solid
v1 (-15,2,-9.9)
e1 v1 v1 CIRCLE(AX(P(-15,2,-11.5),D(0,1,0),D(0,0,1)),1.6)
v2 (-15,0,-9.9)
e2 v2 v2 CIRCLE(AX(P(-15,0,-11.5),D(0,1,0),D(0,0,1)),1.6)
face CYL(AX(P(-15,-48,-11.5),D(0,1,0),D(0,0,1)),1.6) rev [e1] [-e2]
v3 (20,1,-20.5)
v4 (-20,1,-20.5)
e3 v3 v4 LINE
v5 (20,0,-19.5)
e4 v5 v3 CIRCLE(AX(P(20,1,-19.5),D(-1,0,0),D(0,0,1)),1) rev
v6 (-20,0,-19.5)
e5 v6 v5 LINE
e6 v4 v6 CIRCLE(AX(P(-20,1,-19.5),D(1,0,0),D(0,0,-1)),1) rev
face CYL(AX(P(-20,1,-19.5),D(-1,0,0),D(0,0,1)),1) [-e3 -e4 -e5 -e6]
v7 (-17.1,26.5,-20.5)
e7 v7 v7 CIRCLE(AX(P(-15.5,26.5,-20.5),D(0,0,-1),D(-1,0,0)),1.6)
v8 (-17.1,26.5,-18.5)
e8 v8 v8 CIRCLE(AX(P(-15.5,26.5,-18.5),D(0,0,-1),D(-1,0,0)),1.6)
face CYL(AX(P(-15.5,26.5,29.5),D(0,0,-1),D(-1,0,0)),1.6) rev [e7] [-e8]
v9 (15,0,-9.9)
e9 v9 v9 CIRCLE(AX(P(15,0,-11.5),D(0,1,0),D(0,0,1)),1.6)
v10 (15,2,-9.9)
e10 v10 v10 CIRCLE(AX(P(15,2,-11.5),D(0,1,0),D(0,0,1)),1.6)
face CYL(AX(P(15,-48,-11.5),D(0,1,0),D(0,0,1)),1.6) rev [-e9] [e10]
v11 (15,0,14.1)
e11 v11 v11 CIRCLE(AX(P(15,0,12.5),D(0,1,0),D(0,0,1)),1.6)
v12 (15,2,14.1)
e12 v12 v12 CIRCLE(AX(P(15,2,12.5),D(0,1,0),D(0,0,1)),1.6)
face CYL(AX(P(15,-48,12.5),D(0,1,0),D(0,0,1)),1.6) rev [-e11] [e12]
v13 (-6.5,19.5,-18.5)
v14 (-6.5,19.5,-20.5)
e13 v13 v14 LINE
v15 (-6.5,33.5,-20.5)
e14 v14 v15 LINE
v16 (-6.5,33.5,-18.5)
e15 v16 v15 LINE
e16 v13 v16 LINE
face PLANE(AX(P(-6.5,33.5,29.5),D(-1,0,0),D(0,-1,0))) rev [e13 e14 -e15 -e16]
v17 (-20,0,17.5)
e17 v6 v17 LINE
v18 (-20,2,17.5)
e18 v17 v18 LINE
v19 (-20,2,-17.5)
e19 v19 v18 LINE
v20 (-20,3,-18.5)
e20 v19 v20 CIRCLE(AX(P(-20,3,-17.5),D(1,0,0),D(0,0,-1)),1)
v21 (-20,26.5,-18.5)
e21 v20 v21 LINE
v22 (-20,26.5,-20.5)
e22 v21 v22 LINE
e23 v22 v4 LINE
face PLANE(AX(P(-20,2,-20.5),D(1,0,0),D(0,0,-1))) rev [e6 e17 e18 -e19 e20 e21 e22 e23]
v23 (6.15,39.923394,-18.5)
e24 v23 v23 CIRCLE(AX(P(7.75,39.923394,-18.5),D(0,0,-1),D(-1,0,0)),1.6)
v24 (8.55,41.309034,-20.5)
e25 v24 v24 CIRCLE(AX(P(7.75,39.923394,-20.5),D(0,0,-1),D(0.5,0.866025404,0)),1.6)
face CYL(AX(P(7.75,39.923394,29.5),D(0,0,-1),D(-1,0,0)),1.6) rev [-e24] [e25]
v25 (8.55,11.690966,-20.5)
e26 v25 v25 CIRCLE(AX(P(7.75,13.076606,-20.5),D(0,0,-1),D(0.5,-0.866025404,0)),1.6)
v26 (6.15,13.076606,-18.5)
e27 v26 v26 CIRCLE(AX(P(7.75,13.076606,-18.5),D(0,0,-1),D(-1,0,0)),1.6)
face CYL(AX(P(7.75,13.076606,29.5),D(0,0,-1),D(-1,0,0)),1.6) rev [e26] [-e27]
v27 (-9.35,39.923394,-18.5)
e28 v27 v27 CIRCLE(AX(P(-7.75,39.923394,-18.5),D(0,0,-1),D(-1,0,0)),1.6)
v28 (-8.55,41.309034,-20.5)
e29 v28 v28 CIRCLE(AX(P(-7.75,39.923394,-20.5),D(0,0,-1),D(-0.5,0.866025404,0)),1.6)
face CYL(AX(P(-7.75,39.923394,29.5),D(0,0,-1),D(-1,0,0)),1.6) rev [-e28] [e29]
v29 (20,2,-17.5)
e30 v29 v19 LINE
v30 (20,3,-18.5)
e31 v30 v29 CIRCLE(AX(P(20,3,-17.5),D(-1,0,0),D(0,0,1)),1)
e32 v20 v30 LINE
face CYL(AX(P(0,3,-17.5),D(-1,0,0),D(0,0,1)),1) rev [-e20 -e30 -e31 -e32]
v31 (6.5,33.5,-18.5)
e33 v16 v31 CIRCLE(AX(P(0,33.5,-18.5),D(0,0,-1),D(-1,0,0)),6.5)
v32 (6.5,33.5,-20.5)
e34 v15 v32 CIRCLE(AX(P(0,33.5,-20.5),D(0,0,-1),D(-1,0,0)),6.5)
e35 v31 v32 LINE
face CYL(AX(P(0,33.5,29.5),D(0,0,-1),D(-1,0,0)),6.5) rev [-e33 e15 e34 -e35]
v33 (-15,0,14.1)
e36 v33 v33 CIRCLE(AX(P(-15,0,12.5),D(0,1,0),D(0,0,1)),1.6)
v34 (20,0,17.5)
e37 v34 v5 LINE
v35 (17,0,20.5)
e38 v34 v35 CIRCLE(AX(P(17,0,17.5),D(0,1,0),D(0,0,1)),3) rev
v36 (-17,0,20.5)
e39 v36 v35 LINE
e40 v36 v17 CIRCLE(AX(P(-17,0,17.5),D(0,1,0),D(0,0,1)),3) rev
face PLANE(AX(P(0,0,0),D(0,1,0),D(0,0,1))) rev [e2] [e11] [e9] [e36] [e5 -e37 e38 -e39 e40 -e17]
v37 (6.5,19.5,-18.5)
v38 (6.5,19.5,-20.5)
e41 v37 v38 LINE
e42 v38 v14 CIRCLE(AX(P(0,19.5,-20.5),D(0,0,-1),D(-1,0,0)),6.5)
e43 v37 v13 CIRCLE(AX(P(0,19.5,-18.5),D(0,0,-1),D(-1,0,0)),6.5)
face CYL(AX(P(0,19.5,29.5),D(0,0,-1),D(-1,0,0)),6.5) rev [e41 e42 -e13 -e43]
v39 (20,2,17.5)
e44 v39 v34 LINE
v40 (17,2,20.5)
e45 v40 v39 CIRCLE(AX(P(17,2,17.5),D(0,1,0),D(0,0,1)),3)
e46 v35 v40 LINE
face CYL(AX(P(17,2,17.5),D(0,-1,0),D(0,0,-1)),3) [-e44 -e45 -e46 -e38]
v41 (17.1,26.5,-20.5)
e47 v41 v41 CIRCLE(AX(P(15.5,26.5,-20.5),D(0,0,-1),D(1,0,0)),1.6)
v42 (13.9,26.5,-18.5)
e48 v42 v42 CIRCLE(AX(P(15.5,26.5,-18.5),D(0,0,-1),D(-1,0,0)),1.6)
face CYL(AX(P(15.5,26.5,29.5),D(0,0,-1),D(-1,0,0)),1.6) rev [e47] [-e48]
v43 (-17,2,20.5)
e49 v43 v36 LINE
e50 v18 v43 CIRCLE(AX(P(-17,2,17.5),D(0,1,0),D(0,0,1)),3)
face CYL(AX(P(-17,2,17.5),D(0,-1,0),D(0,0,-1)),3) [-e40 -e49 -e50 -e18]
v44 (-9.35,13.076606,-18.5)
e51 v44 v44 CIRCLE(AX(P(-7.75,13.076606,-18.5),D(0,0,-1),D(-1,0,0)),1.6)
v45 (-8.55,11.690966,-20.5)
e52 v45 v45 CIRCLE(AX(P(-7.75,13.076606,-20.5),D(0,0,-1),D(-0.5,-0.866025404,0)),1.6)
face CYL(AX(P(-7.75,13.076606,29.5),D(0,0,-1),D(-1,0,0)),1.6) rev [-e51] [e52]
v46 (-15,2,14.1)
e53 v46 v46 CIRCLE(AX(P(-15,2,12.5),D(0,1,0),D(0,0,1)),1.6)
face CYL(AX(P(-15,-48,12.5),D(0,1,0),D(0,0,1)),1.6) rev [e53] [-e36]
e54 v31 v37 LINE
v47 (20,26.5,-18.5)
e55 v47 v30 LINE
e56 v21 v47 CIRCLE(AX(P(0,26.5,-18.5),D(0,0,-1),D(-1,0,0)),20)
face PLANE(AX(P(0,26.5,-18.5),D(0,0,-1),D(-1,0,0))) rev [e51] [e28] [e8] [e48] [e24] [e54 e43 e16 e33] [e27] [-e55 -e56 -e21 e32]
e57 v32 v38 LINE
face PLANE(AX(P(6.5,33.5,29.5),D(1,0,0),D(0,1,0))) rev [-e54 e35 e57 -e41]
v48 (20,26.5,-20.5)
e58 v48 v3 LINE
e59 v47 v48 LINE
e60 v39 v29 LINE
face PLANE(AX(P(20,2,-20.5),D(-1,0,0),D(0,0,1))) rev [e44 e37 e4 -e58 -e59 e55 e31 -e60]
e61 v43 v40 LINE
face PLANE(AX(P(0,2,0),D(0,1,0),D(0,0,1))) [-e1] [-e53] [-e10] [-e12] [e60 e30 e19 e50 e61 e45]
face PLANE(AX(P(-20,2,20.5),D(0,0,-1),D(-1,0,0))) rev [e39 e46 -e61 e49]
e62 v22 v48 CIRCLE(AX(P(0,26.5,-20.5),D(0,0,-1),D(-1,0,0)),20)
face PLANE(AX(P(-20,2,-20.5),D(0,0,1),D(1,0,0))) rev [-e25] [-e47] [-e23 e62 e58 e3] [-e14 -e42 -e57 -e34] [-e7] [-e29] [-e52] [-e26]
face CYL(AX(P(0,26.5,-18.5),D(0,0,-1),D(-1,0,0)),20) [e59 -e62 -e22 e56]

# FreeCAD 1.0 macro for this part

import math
import FreeCAD as App
import Part
import Sketcher


def edges_at(feature, points):
    """Names of the edges that pass closest to the given points."""
    edges = feature.Shape.Edges
    near = lambda p: min(range(len(edges)), key=lambda i: edges[i].distToShape(Part.Vertex(*p))[0])
    return sorted({f"Edge{near(p) + 1}" for p in points})


def add_polygon(sketch, points):
    """Adds a closed chain of lines whose ends are joined by coincident constraints."""
    first, n = sketch.GeometryCount, len(points)
    for a, b in zip(points, points[1:] + points[:1]):
        sketch.addGeometry(Part.LineSegment(App.Vector(*a, 0), App.Vector(*b, 0)), False)
    for i in range(n):
        sketch.addConstraint(Sketcher.Constraint("Coincident", first + i, 2, first + (i + 1) % n, 1))

doc = App.newDocument("Part")
params = doc.addObject("Spreadsheet::Sheet", "Params")
for row, (alias, value) in enumerate([
    ("sketch1_width", "40 mm"),
    ("sketch1_height", "41 mm"),
    ("pad1_length", "2 mm"),
    ("fillet_radius", "3 mm"),
    ("sketch2_diameter", "3.2 mm"),
    ("pocket1_length", "50 mm"),
    ("sketch3_radius", "20 mm"),
    ("sketch3_height", "26.5 mm"),
    ("pad2_length", "2 mm"),
    ("sketch4_radius", "6.5 mm"),
    ("sketch4_height", "14 mm"),
    ("pocket2_length", "50 mm"),
    ("sketch5_diameter", "3.2 mm"),
    ("pocket3_length", "50 mm"),
    ("fillet2_radius", "1 mm"),
    ("fillet3_radius", "1 mm"),
], start=1):
    params.set(f"A{row}", alias)
    params.set(f"B{row}", "=" + value)
    params.setAlias(f"B{row}", alias)

body = doc.addObject("PartDesign::Body", "Body")

sketch1 = body.newObject("Sketcher::SketchObject", "Sketch")
sketch1.AttachmentSupport = (doc.getObject("XZ_Plane"), [""])
sketch1.MapMode = "FlatFace"
add_polygon(sketch1, [(-20, -20), (-20, 20), (20, 20), (20, -20)])
sketch1.addConstraint([
    Sketcher.Constraint("Vertical", 0),
    Sketcher.Constraint("Horizontal", 1),
    Sketcher.Constraint("Vertical", 2),
    Sketcher.Constraint("Horizontal", 3),
    Sketcher.Constraint("Symmetric", 0, 2, 2, 2, -1, 1),
    Sketcher.Constraint("DistanceX", 1, 1, 1, 2, 40.0),
    Sketcher.Constraint("DistanceY", 0, 1, 0, 2, 41.0),
])
sketch1.setExpression("Constraints[9]", "Params.sketch1_width")
sketch1.setExpression("Constraints[10]", "Params.sketch1_height")
pad1 = body.newObject("PartDesign::Pad", "Pad")
pad1.Profile = sketch1
pad1.setExpression("Length", "Params.pad1_length")
pad1.Reversed = True
doc.recompute()

fillet = body.newObject("PartDesign::Fillet", "Fillet")
fillet.Base = (pad1, edges_at(pad1, [(20, 1, 20.5), (-20, 1, 20.5)]))
fillet.setExpression("Radius", "Params.fillet_radius")

sketch2 = body.newObject("Sketcher::SketchObject", "Sketch001")
sketch2.AttachmentSupport = (doc.getObject("XZ_Plane"), [""])
sketch2.MapMode = "FlatFace"
sketch2.AttachmentOffset = App.Placement(App.Vector(0, 0, -2), App.Rotation())
sketch2.addGeometry([
    Part.Circle(App.Vector(-15, 12.5, 0), App.Vector(0, 0, 1), 1.6),
    Part.Circle(App.Vector(-15, -11.5, 0), App.Vector(0, 0, 1), 1.6),
    Part.Circle(App.Vector(15, -11.5, 0), App.Vector(0, 0, 1), 1.6),
    Part.Circle(App.Vector(15, 12.5, 0), App.Vector(0, 0, 1), 1.6),
], False)
sketch2.addConstraint([
    Sketcher.Constraint("Equal", 0, 1),
    Sketcher.Constraint("Equal", 1, 2),
    Sketcher.Constraint("Equal", 2, 3),
    Sketcher.Constraint("Symmetric", 1, 3, 2, 3, -2),
    Sketcher.Constraint("Symmetric", 0, 3, 3, 3, -2),
    Sketcher.Constraint("Vertical", 0, 3, 1, 3),
    Sketcher.Constraint("Diameter", 0, 3.2),
    Sketcher.Constraint("DistanceX", 0, 3, -1, 1, 15.0),
    Sketcher.Constraint("DistanceY", 1, 3, 0, 3, 24.0),
    Sketcher.Constraint("DistanceY", -1, 1, 0, 3, 12.5),
])
sketch2.setExpression("Constraints[6]", "Params.sketch2_diameter")
pocket1 = body.newObject("PartDesign::Pocket", "Pocket")
pocket1.Profile = sketch2
pocket1.setExpression("Length", "Params.pocket1_length")
pocket1.Reversed = True

sketch3 = body.newObject("Sketcher::SketchObject", "Sketch002")
sketch3.AttachmentSupport = (doc.getObject("XY_Plane"), [""])
sketch3.MapMode = "FlatFace"
sketch3.AttachmentOffset = App.Placement(App.Vector(0, 0, -20.5), App.Rotation())
sketch3.addGeometry([
    Part.LineSegment(App.Vector(20, 0, 0), App.Vector(-20, 0, 0)),
    Part.LineSegment(App.Vector(-20, 0, 0), App.Vector(-20, 26, 0)),
    Part.ArcOfCircle(Part.Circle(App.Vector(0, 26, 0), App.Vector(0, 0, 1), 20), math.radians(0), math.radians(180)),
    Part.LineSegment(App.Vector(20, 26, 0), App.Vector(20, 0, 0)),
], False)
sketch3.addConstraint([
    Sketcher.Constraint("Coincident", 0, 2, 1, 1),
    Sketcher.Constraint("Tangent", 1, 2, 2, 2),
    Sketcher.Constraint("Tangent", 2, 1, 3, 1),
    Sketcher.Constraint("Coincident", 3, 2, 0, 1),
    Sketcher.Constraint("Horizontal", 0),
    Sketcher.Constraint("Vertical", 1),
    Sketcher.Constraint("Vertical", 3),
    Sketcher.Constraint("Symmetric", 0, 2, 3, 2, -1, 1),
    Sketcher.Constraint("Radius", 2, 20.0),
    Sketcher.Constraint("DistanceY", 1, 1, 1, 2, 26.5),
])
sketch3.setExpression("Constraints[8]", "Params.sketch3_radius")
sketch3.setExpression("Constraints[9]", "Params.sketch3_height")
pad2 = body.newObject("PartDesign::Pad", "Pad001")
pad2.Profile = sketch3
pad2.setExpression("Length", "Params.pad2_length")

sketch4 = body.newObject("Sketcher::SketchObject", "Sketch003")
sketch4.AttachmentSupport = (doc.getObject("XY_Plane"), [""])
sketch4.MapMode = "FlatFace"
sketch4.AttachmentOffset = App.Placement(App.Vector(0, 0, -20.5), App.Rotation())
sketch4.addGeometry([
    Part.LineSegment(App.Vector(-6, 20, 0), App.Vector(-6, 34, 0)),
    Part.ArcOfCircle(Part.Circle(App.Vector(0, 34, 0), App.Vector(0, 0, 1), 6), math.radians(0), math.radians(180)),
    Part.LineSegment(App.Vector(6, 34, 0), App.Vector(6, 20, 0)),
    Part.ArcOfCircle(Part.Circle(App.Vector(0, 20, 0), App.Vector(0, 0, 1), 6), math.radians(180), math.radians(360)),
], False)
sketch4.addConstraint([
    Sketcher.Constraint("Tangent", 0, 2, 1, 2),
    Sketcher.Constraint("Tangent", 1, 1, 2, 1),
    Sketcher.Constraint("Tangent", 2, 2, 3, 2),
    Sketcher.Constraint("Tangent", 3, 1, 0, 1),
    Sketcher.Constraint("Vertical", 0),
    Sketcher.Constraint("Vertical", 2),
    Sketcher.Constraint("PointOnObject", 1, 3, -2),
    Sketcher.Constraint("Radius", 1, 6.5),
    Sketcher.Constraint("DistanceY", 0, 1, 0, 2, 14.0),
    Sketcher.Constraint("DistanceY", -1, 1, 1, 3, 33.5),
])
sketch4.setExpression("Constraints[7]", "Params.sketch4_radius")
sketch4.setExpression("Constraints[8]", "Params.sketch4_height")
pocket2 = body.newObject("PartDesign::Pocket", "Pocket001")
pocket2.Profile = sketch4
pocket2.setExpression("Length", "Params.pocket2_length")
pocket2.Reversed = True

sketch5 = body.newObject("Sketcher::SketchObject", "Sketch004")
sketch5.AttachmentSupport = (doc.getObject("XY_Plane"), [""])
sketch5.MapMode = "FlatFace"
sketch5.AttachmentOffset = App.Placement(App.Vector(0, 0, -20.5), App.Rotation())
sketch5.addGeometry(Part.Circle(App.Vector(-15.5, 26.5, 0), App.Vector(0, 0, 1), 1.6), False)
sketch5.addConstraint([
    Sketcher.Constraint("Diameter", 0, 3.2),
    Sketcher.Constraint("DistanceX", 0, 3, -1, 1, 15.5),
    Sketcher.Constraint("DistanceY", -1, 1, 0, 3, 26.5),
])
sketch5.setExpression("Constraints[0]", "Params.sketch5_diameter")
pocket3 = body.newObject("PartDesign::Pocket", "Pocket002")
pocket3.Profile = sketch5
pocket3.setExpression("Length", "Params.pocket3_length")
pocket3.Reversed = True
doc.recompute()

datumline = body.newObject("PartDesign::Line", "DatumLine")
datumline.Placement = App.Placement(App.Vector(0, 26.5, 0), App.Rotation(App.Vector(0, 0, 1), App.Vector(0, 0, 1)))
polarpattern = body.newObject("PartDesign::PolarPattern", "PolarPattern")
polarpattern.Originals = [pocket3]
polarpattern.Axis = (datumline, [""])
polarpattern.Angle = 360
polarpattern.Occurrences = 6
body.Tip = polarpattern
doc.recompute()

fillet2 = body.newObject("PartDesign::Fillet", "Fillet001")
fillet2.Base = (polarpattern, edges_at(polarpattern, [(0, 0, -20.5)]))
fillet2.setExpression("Radius", "Params.fillet2_radius")
doc.recompute()

fillet3 = body.newObject("PartDesign::Fillet", "Fillet002")
fillet3.Base = (fillet2, edges_at(fillet2, [(0, 2, -18.5)]))
fillet3.setExpression("Radius", "Params.fillet3_radius")

doc.recompute()
